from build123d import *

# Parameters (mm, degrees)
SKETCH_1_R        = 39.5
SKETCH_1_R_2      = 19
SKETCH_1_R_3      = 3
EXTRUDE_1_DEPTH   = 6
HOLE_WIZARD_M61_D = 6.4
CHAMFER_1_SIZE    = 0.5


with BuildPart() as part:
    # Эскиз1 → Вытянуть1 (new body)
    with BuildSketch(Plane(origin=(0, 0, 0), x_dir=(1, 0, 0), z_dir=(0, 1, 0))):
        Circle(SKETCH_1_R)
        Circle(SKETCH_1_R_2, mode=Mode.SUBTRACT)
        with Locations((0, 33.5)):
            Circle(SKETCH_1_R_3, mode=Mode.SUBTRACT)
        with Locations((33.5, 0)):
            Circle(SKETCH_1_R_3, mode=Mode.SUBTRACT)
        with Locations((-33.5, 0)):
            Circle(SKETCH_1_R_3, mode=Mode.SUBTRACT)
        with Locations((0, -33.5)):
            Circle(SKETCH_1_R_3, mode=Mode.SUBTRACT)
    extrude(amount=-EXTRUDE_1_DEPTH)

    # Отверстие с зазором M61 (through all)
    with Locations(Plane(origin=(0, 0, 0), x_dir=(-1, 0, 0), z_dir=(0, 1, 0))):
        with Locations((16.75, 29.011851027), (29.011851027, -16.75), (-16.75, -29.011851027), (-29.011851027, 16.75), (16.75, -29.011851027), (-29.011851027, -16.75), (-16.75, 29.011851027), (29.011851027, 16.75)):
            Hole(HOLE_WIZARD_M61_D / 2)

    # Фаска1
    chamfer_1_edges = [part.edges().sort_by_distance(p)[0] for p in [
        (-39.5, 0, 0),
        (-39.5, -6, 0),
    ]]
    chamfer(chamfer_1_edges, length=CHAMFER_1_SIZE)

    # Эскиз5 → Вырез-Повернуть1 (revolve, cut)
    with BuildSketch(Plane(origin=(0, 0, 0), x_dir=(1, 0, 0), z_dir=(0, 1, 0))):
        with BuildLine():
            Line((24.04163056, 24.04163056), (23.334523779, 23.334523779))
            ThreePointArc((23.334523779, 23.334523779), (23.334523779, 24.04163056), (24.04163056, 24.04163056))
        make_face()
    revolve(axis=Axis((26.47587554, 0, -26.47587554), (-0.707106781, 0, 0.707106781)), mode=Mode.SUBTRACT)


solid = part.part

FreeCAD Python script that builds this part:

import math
import FreeCAD as App
import Part
import Sketcher
from FreeCAD import Vector
Q = App.Units.Quantity


def edges_at(feature, points):
    """Names of the edges that pass closest to the given points."""
    edges = feature.Shape.Edges
    near = lambda p: min(range(len(edges)), key=lambda i: edges[i].distToShape(Part.Vertex(*p))[0])
    return sorted({f"Edge{near(p) + 1}" for p in points})

doc = App.newDocument("Part")
body = doc.addObject("PartDesign::Body", "Body")

# Sketch on XZ plane
sketch1 = body.newObject("Sketcher::SketchObject", "Sketch")
sketch1.AttachmentSupport = (doc.getObject("XZ_Plane"), [""])
sketch1.MapMode = "FlatFace"
sketch1.addGeometry([
    Part.Circle(Vector(0, 0, 0), Vector(0, 0, 1), 39.5),  # 0
    Part.Circle(Vector(0, 33.5, 0), Vector(0, 0, 1), 3),  # 1
    Part.Circle(Vector(-33.5, 0, 0), Vector(0, 0, 1), 3),  # 2
    Part.Circle(Vector(0, 0, 0), Vector(0, 0, 1), 19),  # 3
    Part.Circle(Vector(33.5, 0, 0), Vector(0, 0, 1), 3),  # 4
    Part.Circle(Vector(0, -33.5, 0), Vector(0, 0, 1), 3),  # 5
], False)
sketch1.addConstraint([
    Sketcher.Constraint("Coincident", 0, 3, -1, 1),
    Sketcher.Constraint("Coincident", 3, 3, -1, 1),
    Sketcher.Constraint("Equal", 1, 2),
    Sketcher.Constraint("Equal", 2, 4),
    Sketcher.Constraint("Equal", 4, 5),
    Sketcher.Constraint("Symmetric", 2, 3, 4, 3, -1, 1),
    Sketcher.Constraint("Symmetric", 1, 3, 5, 3, -1, 1),
    Sketcher.Constraint("PointOnObject", 1, 3, -2),
    Sketcher.Constraint("PointOnObject", 2, 3, -1),
    Sketcher.Constraint("Diameter", 0, 79.0),
    Sketcher.Constraint("Diameter", 1, 6.0),
    Sketcher.Constraint("Diameter", 3, 38.0),
    Sketcher.Constraint("DistanceX", 2, 3, 4, 3, 67.0),
    Sketcher.Constraint("DistanceY", 5, 3, 1, 3, 67.0),
])
pad1 = body.newObject("PartDesign::Pad", "Pad")
pad1.Profile = sketch1
pad1.Length = 6

# Sketch on XZ plane
sketch2 = body.newObject("Sketcher::SketchObject", "Sketch001")
sketch2.AttachmentSupport = (doc.getObject("XZ_Plane"), [""])
sketch2.MapMode = "FlatFace"
sketch2.addGeometry([
    Part.Circle(Vector(-16.8, 29, 0), Vector(0, 0, 1), 3.2),  # 0
    Part.Circle(Vector(-29, -16.8, 0), Vector(0, 0, 1), 3.2),  # 1
    Part.Circle(Vector(16.8, -29, 0), Vector(0, 0, 1), 3.2),  # 2
    Part.Circle(Vector(29, 16.8, 0), Vector(0, 0, 1), 3.2),  # 3
    Part.Circle(Vector(-16.8, -29, 0), Vector(0, 0, 1), 3.2),  # 4
    Part.Circle(Vector(29, -16.8, 0), Vector(0, 0, 1), 3.2),  # 5
    Part.Circle(Vector(16.8, 29, 0), Vector(0, 0, 1), 3.2),  # 6
    Part.Circle(Vector(-29, 16.8, 0), Vector(0, 0, 1), 3.2),  # 7
], False)
sketch2.addConstraint([
    Sketcher.Constraint("Equal", 0, 1),
    Sketcher.Constraint("Equal", 1, 2),
    Sketcher.Constraint("Equal", 2, 3),
    Sketcher.Constraint("Equal", 3, 4),
    Sketcher.Constraint("Equal", 4, 5),
    Sketcher.Constraint("Equal", 5, 6),
    Sketcher.Constraint("Equal", 6, 7),
    Sketcher.Constraint("Symmetric", 0, 3, 2, 3, -1, 1),
    Sketcher.Constraint("Symmetric", 1, 3, 3, 3, -1, 1),
    Sketcher.Constraint("Symmetric", 4, 3, 6, 3, -1, 1),
    Sketcher.Constraint("Symmetric", 5, 3, 7, 3, -1, 1),
    Sketcher.Constraint("Symmetric", 2, 3, 4, 3, -2),
    Sketcher.Constraint("Symmetric", 1, 3, 5, 3, -2),
    Sketcher.Constraint("Diameter", 0, 6.4),
    Sketcher.Constraint("DistanceX", 0, 3, 2, 3, 33.5),
    Sketcher.Constraint("DistanceY", 1, 3, 3, 3, 33.5),
    Sketcher.Constraint("DistanceY", -1, 1, 0, 3, 29.011851),
    Sketcher.Constraint("DistanceX", 1, 3, -1, 1, 29.011851),
])
doc.recompute()
hole = body.newObject("PartDesign::Hole", "Hole")
hole.Profile = sketch2
hole.ThreadType = "None"
hole.Diameter = 6.4
hole.DepthType = "ThroughAll"
hole.Reversed = True
doc.recompute()

chamfer = body.newObject("PartDesign::Chamfer", "Chamfer")
chamfer.Base = (hole, edges_at(hole, [(-39.5, 0, 0), (-39.5, -6, 0)]))
chamfer.Size = 0.5

# Sketch on XZ plane
sketch3 = body.newObject("Sketcher::SketchObject", "Sketch002")
sketch3.AttachmentSupport = (doc.getObject("XZ_Plane"), [""])
sketch3.MapMode = "FlatFace"
sketch3.addGeometry([
    Part.LineSegment(Vector(23.3, -23.3, 0), Vector(24, -24, 0)),
    Part.ArcOfCircle(Part.Circle(Vector(23.7, -23.7, 0), Vector(0, 0, 1), 0.5), math.radians(135), math.radians(315)),
], False)
sketch3.addGeometry(Part.LineSegment(Vector(24, -24, 0), Vector(23.3, -23.3, 0)), True)  # axis
sketch3.addConstraint([
    Sketcher.Constraint("Coincident", 0, 1, 1, 1),
    Sketcher.Constraint("Coincident", 1, 2, 0, 2),
    Sketcher.Constraint("Coincident", 2, 1, 1, 2),
    Sketcher.Constraint("Coincident", 2, 2, 0, 1),
    Sketcher.Constraint("Radius", 1, 0.5),
    Sketcher.Constraint("Angle", 0, Q("-45 deg")),
    Sketcher.Constraint("DistanceX", -1, 1, 1, 2, 24.041631),
    Sketcher.Constraint("DistanceY", 1, 2, -1, 1, 24.041631),
    Sketcher.Constraint("DistanceX", -1, 1, 1, 3, 23.688077),
])
groove = body.newObject("PartDesign::Groove", "Groove")
groove.Profile = sketch3
groove.ReferenceAxis = (sketch3, ["Axis0"])
groove.Angle = 360

doc.recompute()
